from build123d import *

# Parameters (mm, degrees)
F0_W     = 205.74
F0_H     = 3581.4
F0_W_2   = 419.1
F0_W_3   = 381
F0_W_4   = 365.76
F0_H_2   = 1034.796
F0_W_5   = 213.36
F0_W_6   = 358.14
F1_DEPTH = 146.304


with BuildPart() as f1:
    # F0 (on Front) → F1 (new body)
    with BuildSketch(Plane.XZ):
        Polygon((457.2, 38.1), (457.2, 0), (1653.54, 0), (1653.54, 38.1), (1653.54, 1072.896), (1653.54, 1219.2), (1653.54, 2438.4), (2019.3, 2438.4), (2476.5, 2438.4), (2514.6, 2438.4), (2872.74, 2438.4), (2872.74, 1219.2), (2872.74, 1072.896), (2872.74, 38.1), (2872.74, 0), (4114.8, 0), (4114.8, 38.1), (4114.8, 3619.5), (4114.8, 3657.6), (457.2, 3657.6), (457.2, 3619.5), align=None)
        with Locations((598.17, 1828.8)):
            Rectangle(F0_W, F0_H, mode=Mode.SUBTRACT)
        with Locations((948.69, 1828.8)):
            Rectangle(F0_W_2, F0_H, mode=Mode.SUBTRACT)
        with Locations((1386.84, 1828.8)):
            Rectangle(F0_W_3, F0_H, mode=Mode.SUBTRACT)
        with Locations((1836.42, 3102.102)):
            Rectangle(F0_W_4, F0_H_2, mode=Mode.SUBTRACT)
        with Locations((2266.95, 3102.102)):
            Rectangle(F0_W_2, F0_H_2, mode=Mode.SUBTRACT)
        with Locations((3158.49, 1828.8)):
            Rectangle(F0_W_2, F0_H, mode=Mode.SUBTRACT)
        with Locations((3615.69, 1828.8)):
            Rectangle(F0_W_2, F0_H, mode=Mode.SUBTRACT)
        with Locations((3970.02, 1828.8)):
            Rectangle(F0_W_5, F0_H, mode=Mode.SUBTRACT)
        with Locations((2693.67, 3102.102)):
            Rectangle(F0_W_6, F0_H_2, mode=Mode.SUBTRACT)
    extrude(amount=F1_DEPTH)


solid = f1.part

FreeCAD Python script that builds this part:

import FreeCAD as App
import Part
import Sketcher

V = App.Vector
Q = App.Units.Quantity

doc = App.newDocument("Part")
params = doc.addObject("Spreadsheet::Sheet", "Params")
for row, (alias, value) in enumerate([
    ("sketch1_width", "48 in"),
    ("sketch1_width2", "144 in"),
    ("sketch1_width3", "15 in"),
    ("sketch1_height", "96 in"),
    ("sketch1_height2", "141 in"),
    ("pad1_length", "5.76 in"),
], start=1):
    params.set(f"A{row}", alias)
    params.set(f"B{row}", "=" + value)
    params.setAlias(f"B{row}", alias)

body = doc.addObject("PartDesign::Body", "Body")

# Sketch on XZ plane
sketch1 = body.newObject("Sketcher::SketchObject", "Sketch")
sketch1.AttachmentSupport = (doc.getObject("XZ_Plane"), [""])
sketch1.MapMode = "FlatFace"
sketch1.addGeometry([
    Part.LineSegment(V(457, 0, 0), V(1654, 0, 0)),  # 0
    Part.LineSegment(V(1654, 0, 0), V(1654, 2438, 0)),  # 1
    Part.LineSegment(V(1654, 2438, 0), V(2873, 2438, 0)),  # 2
    Part.LineSegment(V(2873, 2438, 0), V(2873, 0, 0)),  # 3
    Part.LineSegment(V(2873, 0, 0), V(4115, 0, 0)),  # 4
    Part.LineSegment(V(4115, 0, 0), V(4115, 3658, 0)),  # 5
    Part.LineSegment(V(4115, 3658, 0), V(457, 3658, 0)),  # 6
    Part.LineSegment(V(457, 3658, 0), V(457, 0, 0)),  # 7
    Part.LineSegment(V(701, 38, 0), V(495, 38, 0)),  # 8
    Part.LineSegment(V(495, 38, 0), V(495, 3620, 0)),  # 9
    Part.LineSegment(V(495, 3620, 0), V(701, 3620, 0)),  # 10
    Part.LineSegment(V(701, 3620, 0), V(701, 38, 0)),  # 11
    Part.LineSegment(V(1158, 38, 0), V(739, 38, 0)),  # 12
    Part.LineSegment(V(739, 38, 0), V(739, 3620, 0)),  # 13
    Part.LineSegment(V(739, 3620, 0), V(1158, 3620, 0)),  # 14
    Part.LineSegment(V(1158, 3620, 0), V(1158, 38, 0)),  # 15
    Part.LineSegment(V(1577, 38, 0), V(1196, 38, 0)),  # 16
    Part.LineSegment(V(1196, 38, 0), V(1196, 3620, 0)),  # 17
    Part.LineSegment(V(1196, 3620, 0), V(1577, 3620, 0)),  # 18
    Part.LineSegment(V(1577, 3620, 0), V(1577, 38, 0)),  # 19
    Part.LineSegment(V(2019, 2585, 0), V(1654, 2585, 0)),  # 20
    Part.LineSegment(V(1654, 2585, 0), V(1654, 3620, 0)),  # 21
    Part.LineSegment(V(1654, 3620, 0), V(2019, 3620, 0)),  # 22
    Part.LineSegment(V(2019, 3620, 0), V(2019, 2585, 0)),  # 23
    Part.LineSegment(V(2476, 2585, 0), V(2057, 2585, 0)),  # 24
    Part.LineSegment(V(2057, 2585, 0), V(2057, 3620, 0)),  # 25
    Part.LineSegment(V(2057, 3620, 0), V(2476, 3620, 0)),  # 26
    Part.LineSegment(V(2476, 3620, 0), V(2476, 2585, 0)),  # 27
    Part.LineSegment(V(3368, 38, 0), V(2949, 38, 0)),  # 28
    Part.LineSegment(V(2949, 38, 0), V(2949, 3620, 0)),  # 29
    Part.LineSegment(V(2949, 3620, 0), V(3368, 3620, 0)),  # 30
    Part.LineSegment(V(3368, 3620, 0), V(3368, 38, 0)),  # 31
    Part.LineSegment(V(3825, 38, 0), V(3406, 38, 0)),  # 32
    Part.LineSegment(V(3406, 38, 0), V(3406, 3620, 0)),  # 33
    Part.LineSegment(V(3406, 3620, 0), V(3825, 3620, 0)),  # 34
    Part.LineSegment(V(3825, 3620, 0), V(3825, 38, 0)),  # 35
    Part.LineSegment(V(4077, 38, 0), V(3863, 38, 0)),  # 36
    Part.LineSegment(V(3863, 38, 0), V(3863, 3620, 0)),  # 37
    Part.LineSegment(V(3863, 3620, 0), V(4077, 3620, 0)),  # 38
    Part.LineSegment(V(4077, 3620, 0), V(4077, 38, 0)),  # 39
    Part.LineSegment(V(2873, 2585, 0), V(2515, 2585, 0)),  # 40
    Part.LineSegment(V(2515, 2585, 0), V(2515, 3620, 0)),  # 41
    Part.LineSegment(V(2515, 3620, 0), V(2873, 3620, 0)),  # 42
    Part.LineSegment(V(2873, 3620, 0), V(2873, 2585, 0)),  # 43
], False)
sketch1.addConstraint([
    Sketcher.Constraint("Coincident", 0, 2, 1, 1),
    Sketcher.Constraint("Coincident", 1, 2, 2, 1),
    Sketcher.Constraint("Coincident", 2, 2, 3, 1),
    Sketcher.Constraint("Coincident", 3, 2, 4, 1),
    Sketcher.Constraint("Coincident", 4, 2, 5, 1),
    Sketcher.Constraint("Coincident", 5, 2, 6, 1),
    Sketcher.Constraint("Coincident", 6, 2, 7, 1),
    Sketcher.Constraint("Coincident", 7, 2, 0, 1),
    Sketcher.Constraint("Coincident", 8, 2, 9, 1),
    Sketcher.Constraint("Coincident", 9, 2, 10, 1),
    Sketcher.Constraint("Coincident", 10, 2, 11, 1),
    Sketcher.Constraint("Coincident", 11, 2, 8, 1),
    Sketcher.Constraint("Coincident", 12, 2, 13, 1),
    Sketcher.Constraint("Coincident", 13, 2, 14, 1),
    Sketcher.Constraint("Coincident", 14, 2, 15, 1),
    Sketcher.Constraint("Coincident", 15, 2, 12, 1),
    Sketcher.Constraint("Coincident", 16, 2, 17, 1),
    Sketcher.Constraint("Coincident", 17, 2, 18, 1),
    Sketcher.Constraint("Coincident", 18, 2, 19, 1),
    Sketcher.Constraint("Coincident", 19, 2, 16, 1),
    Sketcher.Constraint("Coincident", 20, 2, 21, 1),
    Sketcher.Constraint("Coincident", 21, 2, 22, 1),
    Sketcher.Constraint("Coincident", 22, 2, 23, 1),
    Sketcher.Constraint("Coincident", 23, 2, 20, 1),
    Sketcher.Constraint("Coincident", 24, 2, 25, 1),
    Sketcher.Constraint("Coincident", 25, 2, 26, 1),
    Sketcher.Constraint("Coincident", 26, 2, 27, 1),
    Sketcher.Constraint("Coincident", 27, 2, 24, 1),
    Sketcher.Constraint("Coincident", 28, 2, 29, 1),
    Sketcher.Constraint("Coincident", 29, 2, 30, 1),
    Sketcher.Constraint("Coincident", 30, 2, 31, 1),
    Sketcher.Constraint("Coincident", 31, 2, 28, 1),
    Sketcher.Constraint("Coincident", 32, 2, 33, 1),
    Sketcher.Constraint("Coincident", 33, 2, 34, 1),
    Sketcher.Constraint("Coincident", 34, 2, 35, 1),
    Sketcher.Constraint("Coincident", 35, 2, 32, 1),
    Sketcher.Constraint("Coincident", 36, 2, 37, 1),
    Sketcher.Constraint("Coincident", 37, 2, 38, 1),
    Sketcher.Constraint("Coincident", 38, 2, 39, 1),
    Sketcher.Constraint("Coincident", 39, 2, 36, 1),
    Sketcher.Constraint("Coincident", 40, 2, 41, 1),
    Sketcher.Constraint("Coincident", 41, 2, 42, 1),
    Sketcher.Constraint("Coincident", 42, 2, 43, 1),
    Sketcher.Constraint("Coincident", 43, 2, 40, 1),
    Sketcher.Constraint("Horizontal", 0),
    Sketcher.Constraint("Vertical", 1),
    Sketcher.Constraint("Horizontal", 2),
    Sketcher.Constraint("Vertical", 3),
    Sketcher.Constraint("Horizontal", 4),
    Sketcher.Constraint("Vertical", 5),
    Sketcher.Constraint("Horizontal", 6),
    Sketcher.Constraint("Vertical", 7),
    Sketcher.Constraint("Horizontal", 8),
    Sketcher.Constraint("Vertical", 9),
    Sketcher.Constraint("Horizontal", 10),
    Sketcher.Constraint("Vertical", 11),
    Sketcher.Constraint("Horizontal", 12),
    Sketcher.Constraint("Vertical", 13),
    Sketcher.Constraint("Horizontal", 14),
    Sketcher.Constraint("Vertical", 15),
    Sketcher.Constraint("Horizontal", 16),
    Sketcher.Constraint("Vertical", 17),
    Sketcher.Constraint("Horizontal", 18),
    Sketcher.Constraint("Vertical", 19),
    Sketcher.Constraint("Horizontal", 20),
    Sketcher.Constraint("Vertical", 21),
    Sketcher.Constraint("Horizontal", 22),
    Sketcher.Constraint("Vertical", 23),
    Sketcher.Constraint("Horizontal", 24),
    Sketcher.Constraint("Vertical", 25),
    Sketcher.Constraint("Horizontal", 26),
    Sketcher.Constraint("Vertical", 27),
    Sketcher.Constraint("Horizontal", 28),
    Sketcher.Constraint("Vertical", 29),
    Sketcher.Constraint("Horizontal", 30),
    Sketcher.Constraint("Vertical", 31),
    Sketcher.Constraint("Horizontal", 32),
    Sketcher.Constraint("Vertical", 33),
    Sketcher.Constraint("Horizontal", 34),
    Sketcher.Constraint("Vertical", 35),
    Sketcher.Constraint("Horizontal", 36),
    Sketcher.Constraint("Vertical", 37),
    Sketcher.Constraint("Horizontal", 38),
    Sketcher.Constraint("Vertical", 39),
    Sketcher.Constraint("Horizontal", 40),
    Sketcher.Constraint("Vertical", 41),
    Sketcher.Constraint("Horizontal", 42),
    Sketcher.Constraint("Vertical", 43),
    Sketcher.Constraint("PointOnObject", 0, 2, -1),
    Sketcher.Constraint("PointOnObject", 3, 2, -1),
    Sketcher.Constraint("Horizontal", 11, 2, 12, 2),
    Sketcher.Constraint("Horizontal", 10, 2, 13, 2),
    Sketcher.Constraint("Horizontal", 15, 2, 16, 2),
    Sketcher.Constraint("Horizontal", 14, 2, 17, 2),
    Sketcher.Constraint("Horizontal", 18, 2, 21, 2),
    Sketcher.Constraint("Horizontal", 23, 2, 24, 2),
    Sketcher.Constraint("Horizontal", 22, 2, 25, 2),
    Sketcher.Constraint("Horizontal", 19, 2, 28, 2),
    Sketcher.Constraint("Horizontal", 26, 2, 29, 2),
    Sketcher.Constraint("Horizontal", 31, 2, 32, 2),
    Sketcher.Constraint("Horizontal", 30, 2, 33, 2),
    Sketcher.Constraint("Horizontal", 35, 2, 36, 2),
    Sketcher.Constraint("Horizontal", 34, 2, 37, 2),
    Sketcher.Constraint("Horizontal", 27, 2, 40, 2),
    Sketcher.Constraint("Horizontal", 38, 2, 41, 2),
    Sketcher.Constraint("Vertical", 1, 2, 20, 2),
    Sketcher.Constraint("Vertical", 3, 2, 42, 2),
    Sketcher.Constraint("Equal", 14, 24),
    Sketcher.Constraint("Equal", 26, 28),
    Sketcher.Constraint("Equal", 30, 32),
    Sketcher.Constraint("Equal", 6, 5),
    Sketcher.Constraint("DistanceX", 2, 1, 2, 2, Q("48 in")),
    Sketcher.Constraint("DistanceX", 6, 2, 6, 1, Q("144 in")),
    Sketcher.Constraint("DistanceX", 16, 2, 16, 1, Q("15 in")),
    Sketcher.Constraint("DistanceY", 1, 1, 1, 2, Q("96 in")),
    Sketcher.Constraint("DistanceY", 9, 1, 9, 2, Q("141 in")),
    Sketcher.Constraint("DistanceX", 0, 1, 0, 2, Q("47.1 in")),
    Sketcher.Constraint("DistanceX", 8, 2, 8, 1, Q("8.1 in")),
    Sketcher.Constraint("DistanceX", 12, 2, 12, 1, Q("16.5 in")),
    Sketcher.Constraint("DistanceX", 20, 2, 20, 1, Q("14.4 in")),
    Sketcher.Constraint("DistanceX", 36, 2, 36, 1, Q("8.4 in")),
    Sketcher.Constraint("DistanceX", 40, 2, 40, 1, Q("14.1 in")),
    Sketcher.Constraint("DistanceX", -1, 1, 4, 2, Q("162 in")),
    Sketcher.Constraint("DistanceX", -1, 1, 24, 2, Q("81 in")),
    Sketcher.Constraint("DistanceX", 12, 2, 0, 2, Q("36 in")),
    Sketcher.Constraint("DistanceX", 10, 2, 14, 2, Q("18 in")),
    Sketcher.Constraint("DistanceX", 12, 2, 16, 2, Q("18 in")),
    Sketcher.Constraint("DistanceX", 3, 2, 28, 2, Q("3 in")),
    Sketcher.Constraint("DistanceX", 28, 2, 32, 2, Q("18 in")),
    Sketcher.Constraint("DistanceX", 32, 2, 36, 2, Q("18 in")),
    Sketcher.Constraint("DistanceY", 21, 1, 21, 2, Q("40.74 in")),
    Sketcher.Constraint("DistanceY", -1, 1, 8, 2, Q("1.5 in")),
])
sketch1.setExpression("Constraints[111]", "Params.sketch1_width")
sketch1.setExpression("Constraints[112]", "Params.sketch1_width2")
sketch1.setExpression("Constraints[113]", "Params.sketch1_width3")
sketch1.setExpression("Constraints[114]", "Params.sketch1_height")
sketch1.setExpression("Constraints[115]", "Params.sketch1_height2")
pad1 = body.newObject("PartDesign::Pad", "Pad")
pad1.Profile = sketch1
pad1.setExpression("Length", "Params.pad1_length")

doc.recompute()
